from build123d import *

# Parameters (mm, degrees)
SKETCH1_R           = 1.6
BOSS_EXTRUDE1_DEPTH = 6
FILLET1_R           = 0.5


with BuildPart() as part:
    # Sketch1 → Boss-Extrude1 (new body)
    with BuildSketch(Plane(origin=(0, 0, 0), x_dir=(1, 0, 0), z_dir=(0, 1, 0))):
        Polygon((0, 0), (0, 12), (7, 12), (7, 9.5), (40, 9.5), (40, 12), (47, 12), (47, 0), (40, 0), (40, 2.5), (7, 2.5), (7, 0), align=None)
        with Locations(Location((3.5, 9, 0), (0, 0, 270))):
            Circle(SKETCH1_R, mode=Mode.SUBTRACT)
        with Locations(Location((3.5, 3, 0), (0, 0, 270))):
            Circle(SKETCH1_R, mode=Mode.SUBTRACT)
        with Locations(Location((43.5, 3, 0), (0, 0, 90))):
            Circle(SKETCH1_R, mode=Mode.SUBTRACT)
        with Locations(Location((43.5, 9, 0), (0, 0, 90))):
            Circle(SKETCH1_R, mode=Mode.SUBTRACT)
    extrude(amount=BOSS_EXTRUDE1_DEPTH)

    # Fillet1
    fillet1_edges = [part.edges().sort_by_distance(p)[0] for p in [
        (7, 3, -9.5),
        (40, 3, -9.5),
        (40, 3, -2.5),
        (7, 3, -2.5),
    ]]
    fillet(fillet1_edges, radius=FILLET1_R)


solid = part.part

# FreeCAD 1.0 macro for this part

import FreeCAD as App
import Part
import Sketcher
from FreeCAD import Vector


def edges_at(feature, points):
    """Names of the edges that pass closest to the given points."""
    edges = feature.Shape.Edges
    near = lambda p: min(range(len(edges)), key=lambda i: edges[i].distToShape(Part.Vertex(*p))[0])
    return sorted({f"Edge{near(p) + 1}" for p in points})


def add_polygon(sketch, points):
    """Adds a closed chain of lines whose ends are joined by coincident constraints."""
    first, n = sketch.GeometryCount, len(points)
    for a, b in zip(points, points[1:] + points[:1]):
        sketch.addGeometry(Part.LineSegment(App.Vector(*a, 0), App.Vector(*b, 0)), False)
    for i in range(n):
        sketch.addConstraint(Sketcher.Constraint("Coincident", first + i, 2, first + (i + 1) % n, 1))

doc = App.newDocument("Part")
params = doc.addObject("Spreadsheet::Sheet", "Params")
for row, (alias, value) in enumerate([
    ("sketch1_diameter", "3.2 mm"),
    ("sketch1_width", "7 mm"),
    ("sketch1_width2", "33 mm"),
    ("sketch1_height", "12 mm"),
    ("sketch1_height2", "2.5 mm"),
    ("pad1_length", "6 mm"),
    ("fillet_radius", "0.5 mm"),
], start=1):
    params.set(f"A{row}", alias)
    params.set(f"B{row}", "=" + value)
    params.setAlias(f"B{row}", alias)

body = doc.addObject("PartDesign::Body", "Body")

# Sketch on XZ plane
sketch1 = body.newObject("Sketcher::SketchObject", "Sketch")
sketch1.AttachmentSupport = (doc.getObject("XZ_Plane"), [""])
sketch1.MapMode = "FlatFace"
add_polygon(sketch1, [(0, -12), (0, 0), (7, 0), (7, -2.5), (40, -2.5), (40, 0), (47, 0), (47, -12), (40, -12), (40, -9.5), (7, -9.5), (7, -12)])  # lines 0-11
sketch1.addGeometry(Part.Circle(Vector(43.5, -3, 0), Vector(0, 0, 1), 1.6), False)  # 12
sketch1.addGeometry(Part.Circle(Vector(3.5, -3, 0), Vector(0, 0, 1), 1.6), False)  # 13
sketch1.addGeometry(Part.Circle(Vector(43.5, -9, 0), Vector(0, 0, 1), 1.6), False)  # 14
sketch1.addGeometry(Part.Circle(Vector(3.5, -9, 0), Vector(0, 0, 1), 1.6), False)  # 15
sketch1.addConstraint([
    Sketcher.Constraint("Vertical", 0),
    Sketcher.Constraint("Horizontal", 1),
    Sketcher.Constraint("Vertical", 2),
    Sketcher.Constraint("Horizontal", 3),
    Sketcher.Constraint("Vertical", 4),
    Sketcher.Constraint("Horizontal", 5),
    Sketcher.Constraint("Vertical", 6),
    Sketcher.Constraint("Horizontal", 7),
    Sketcher.Constraint("Vertical", 8),
    Sketcher.Constraint("Horizontal", 9),
    Sketcher.Constraint("Vertical", 10),
    Sketcher.Constraint("Horizontal", 11),
    Sketcher.Constraint("Coincident", 0, 2, -1, 1),
    Sketcher.Constraint("Equal", 12, 13),
    Sketcher.Constraint("Equal", 13, 14),
    Sketcher.Constraint("Equal", 14, 15),
    Sketcher.Constraint("PointOnObject", 4, 2, -1),
    Sketcher.Constraint("Horizontal", 12, 3, 13, 3),
    Sketcher.Constraint("Horizontal", 14, 3, 15, 3),
    Sketcher.Constraint("Horizontal", 7, 2, 10, 2),
    Sketcher.Constraint("Vertical", 12, 3, 14, 3),
    Sketcher.Constraint("Vertical", 13, 3, 15, 3),
    Sketcher.Constraint("Vertical", 4, 2, 7, 2),
    Sketcher.Constraint("Vertical", 2, 2, 9, 2),
    Sketcher.Constraint("Equal", 1, 5),
    Sketcher.Constraint("Equal", 4, 8),
    Sketcher.Constraint("Diameter", 12, 3.2),
    Sketcher.Constraint("DistanceX", 1, 1, 1, 2, 7.0),
    Sketcher.Constraint("DistanceX", 3, 1, 3, 2, 33.0),
    Sketcher.Constraint("DistanceY", 0, 1, 0, 2, 12.0),
    Sketcher.Constraint("DistanceY", 2, 2, 2, 1, 2.5),
    Sketcher.Constraint("DistanceY", 12, 3, -1, 1, 3.0),
    Sketcher.Constraint("DistanceY", 14, 3, -1, 1, 9.0),
    Sketcher.Constraint("DistanceX", 13, 3, 12, 3, 40.0),
    Sketcher.Constraint("DistanceX", -1, 1, 12, 3, 43.5),
])
sketch1.setExpression("Constraints[38]", "Params.sketch1_diameter")
sketch1.setExpression("Constraints[39]", "Params.sketch1_width")
sketch1.setExpression("Constraints[40]", "Params.sketch1_width2")
sketch1.setExpression("Constraints[41]", "Params.sketch1_height")
sketch1.setExpression("Constraints[42]", "Params.sketch1_height2")
pad1 = body.newObject("PartDesign::Pad", "Pad")
pad1.Profile = sketch1
pad1.setExpression("Length", "Params.pad1_length")
pad1.Reversed = True
doc.recompute()

fillet = body.newObject("PartDesign::Fillet", "Fillet")
fillet.Base = (pad1, edges_at(pad1, [
    (7, 3, -9.5),
    (40, 3, -9.5),
    (40, 3, -2.5),
    (7, 3, -2.5),
]))
fillet.setExpression("Radius", "Params.fillet_radius")

doc.recompute()
